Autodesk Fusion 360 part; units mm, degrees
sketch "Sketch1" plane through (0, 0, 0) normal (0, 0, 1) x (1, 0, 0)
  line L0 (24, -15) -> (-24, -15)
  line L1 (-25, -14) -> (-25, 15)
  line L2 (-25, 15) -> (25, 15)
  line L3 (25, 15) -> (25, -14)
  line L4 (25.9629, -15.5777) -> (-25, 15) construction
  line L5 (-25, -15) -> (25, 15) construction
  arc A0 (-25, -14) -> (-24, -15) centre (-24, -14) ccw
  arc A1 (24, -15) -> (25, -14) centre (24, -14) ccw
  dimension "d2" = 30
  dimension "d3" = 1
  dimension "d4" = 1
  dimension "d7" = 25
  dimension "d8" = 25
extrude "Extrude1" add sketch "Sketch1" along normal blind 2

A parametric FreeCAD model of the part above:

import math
import FreeCAD as App
import Part
import Sketcher

doc = App.newDocument("Part")
body = doc.addObject("PartDesign::Body", "Body")

# Sketch on XY plane
sketch1 = body.newObject("Sketcher::SketchObject", "Sketch")
sketch1.AttachmentSupport = (doc.getObject("XY_Plane"), [""])
sketch1.MapMode = "FlatFace"
sketch1.addGeometry([
    Part.LineSegment(App.Vector(-24, -15, 0), App.Vector(24, -15, 0)),  # 0
    Part.ArcOfCircle(Part.Circle(App.Vector(24, -14, 0), App.Vector(0, 0, 1), 1), math.radians(-90), math.radians(0)),  # 1
    Part.LineSegment(App.Vector(25, -14, 0), App.Vector(25, 15, 0)),  # 2
    Part.LineSegment(App.Vector(25, 15, 0), App.Vector(-25, 15, 0)),  # 3
    Part.LineSegment(App.Vector(-25, 15, 0), App.Vector(-25, -14, 0)),  # 4
    Part.ArcOfCircle(Part.Circle(App.Vector(-24, -14, 0), App.Vector(0, 0, 1), 1), math.radians(180), math.radians(270)),  # 5
], False)
sketch1.addConstraint([
    Sketcher.Constraint("Tangent", 0, 2, 1, 1),
    Sketcher.Constraint("Tangent", 1, 2, 2, 1),
    Sketcher.Constraint("Coincident", 2, 2, 3, 1),
    Sketcher.Constraint("Coincident", 3, 2, 4, 1),
    Sketcher.Constraint("Tangent", 4, 2, 5, 1),
    Sketcher.Constraint("Tangent", 5, 2, 0, 1),
    Sketcher.Constraint("Horizontal", 0),
    Sketcher.Constraint("Vertical", 2),
    Sketcher.Constraint("Horizontal", 3),
    Sketcher.Constraint("Vertical", 4),
    Sketcher.Constraint("Equal", 1, 5),
    Sketcher.Constraint("Radius", 1, 1.0),
    Sketcher.Constraint("DistanceX", -1, 1, 1, 2, 25.0),
    Sketcher.Constraint("DistanceX", 3, 2, -1, 1, 25.0),
    Sketcher.Constraint("DistanceY", 0, 2, 2, 2, 30.0),
    Sketcher.Constraint("DistanceY", 1, 3, -1, 1, 14.0),
])
pad1 = body.newObject("PartDesign::Pad", "Pad")
pad1.Profile = sketch1
pad1.Length = 2

doc.recompute()
